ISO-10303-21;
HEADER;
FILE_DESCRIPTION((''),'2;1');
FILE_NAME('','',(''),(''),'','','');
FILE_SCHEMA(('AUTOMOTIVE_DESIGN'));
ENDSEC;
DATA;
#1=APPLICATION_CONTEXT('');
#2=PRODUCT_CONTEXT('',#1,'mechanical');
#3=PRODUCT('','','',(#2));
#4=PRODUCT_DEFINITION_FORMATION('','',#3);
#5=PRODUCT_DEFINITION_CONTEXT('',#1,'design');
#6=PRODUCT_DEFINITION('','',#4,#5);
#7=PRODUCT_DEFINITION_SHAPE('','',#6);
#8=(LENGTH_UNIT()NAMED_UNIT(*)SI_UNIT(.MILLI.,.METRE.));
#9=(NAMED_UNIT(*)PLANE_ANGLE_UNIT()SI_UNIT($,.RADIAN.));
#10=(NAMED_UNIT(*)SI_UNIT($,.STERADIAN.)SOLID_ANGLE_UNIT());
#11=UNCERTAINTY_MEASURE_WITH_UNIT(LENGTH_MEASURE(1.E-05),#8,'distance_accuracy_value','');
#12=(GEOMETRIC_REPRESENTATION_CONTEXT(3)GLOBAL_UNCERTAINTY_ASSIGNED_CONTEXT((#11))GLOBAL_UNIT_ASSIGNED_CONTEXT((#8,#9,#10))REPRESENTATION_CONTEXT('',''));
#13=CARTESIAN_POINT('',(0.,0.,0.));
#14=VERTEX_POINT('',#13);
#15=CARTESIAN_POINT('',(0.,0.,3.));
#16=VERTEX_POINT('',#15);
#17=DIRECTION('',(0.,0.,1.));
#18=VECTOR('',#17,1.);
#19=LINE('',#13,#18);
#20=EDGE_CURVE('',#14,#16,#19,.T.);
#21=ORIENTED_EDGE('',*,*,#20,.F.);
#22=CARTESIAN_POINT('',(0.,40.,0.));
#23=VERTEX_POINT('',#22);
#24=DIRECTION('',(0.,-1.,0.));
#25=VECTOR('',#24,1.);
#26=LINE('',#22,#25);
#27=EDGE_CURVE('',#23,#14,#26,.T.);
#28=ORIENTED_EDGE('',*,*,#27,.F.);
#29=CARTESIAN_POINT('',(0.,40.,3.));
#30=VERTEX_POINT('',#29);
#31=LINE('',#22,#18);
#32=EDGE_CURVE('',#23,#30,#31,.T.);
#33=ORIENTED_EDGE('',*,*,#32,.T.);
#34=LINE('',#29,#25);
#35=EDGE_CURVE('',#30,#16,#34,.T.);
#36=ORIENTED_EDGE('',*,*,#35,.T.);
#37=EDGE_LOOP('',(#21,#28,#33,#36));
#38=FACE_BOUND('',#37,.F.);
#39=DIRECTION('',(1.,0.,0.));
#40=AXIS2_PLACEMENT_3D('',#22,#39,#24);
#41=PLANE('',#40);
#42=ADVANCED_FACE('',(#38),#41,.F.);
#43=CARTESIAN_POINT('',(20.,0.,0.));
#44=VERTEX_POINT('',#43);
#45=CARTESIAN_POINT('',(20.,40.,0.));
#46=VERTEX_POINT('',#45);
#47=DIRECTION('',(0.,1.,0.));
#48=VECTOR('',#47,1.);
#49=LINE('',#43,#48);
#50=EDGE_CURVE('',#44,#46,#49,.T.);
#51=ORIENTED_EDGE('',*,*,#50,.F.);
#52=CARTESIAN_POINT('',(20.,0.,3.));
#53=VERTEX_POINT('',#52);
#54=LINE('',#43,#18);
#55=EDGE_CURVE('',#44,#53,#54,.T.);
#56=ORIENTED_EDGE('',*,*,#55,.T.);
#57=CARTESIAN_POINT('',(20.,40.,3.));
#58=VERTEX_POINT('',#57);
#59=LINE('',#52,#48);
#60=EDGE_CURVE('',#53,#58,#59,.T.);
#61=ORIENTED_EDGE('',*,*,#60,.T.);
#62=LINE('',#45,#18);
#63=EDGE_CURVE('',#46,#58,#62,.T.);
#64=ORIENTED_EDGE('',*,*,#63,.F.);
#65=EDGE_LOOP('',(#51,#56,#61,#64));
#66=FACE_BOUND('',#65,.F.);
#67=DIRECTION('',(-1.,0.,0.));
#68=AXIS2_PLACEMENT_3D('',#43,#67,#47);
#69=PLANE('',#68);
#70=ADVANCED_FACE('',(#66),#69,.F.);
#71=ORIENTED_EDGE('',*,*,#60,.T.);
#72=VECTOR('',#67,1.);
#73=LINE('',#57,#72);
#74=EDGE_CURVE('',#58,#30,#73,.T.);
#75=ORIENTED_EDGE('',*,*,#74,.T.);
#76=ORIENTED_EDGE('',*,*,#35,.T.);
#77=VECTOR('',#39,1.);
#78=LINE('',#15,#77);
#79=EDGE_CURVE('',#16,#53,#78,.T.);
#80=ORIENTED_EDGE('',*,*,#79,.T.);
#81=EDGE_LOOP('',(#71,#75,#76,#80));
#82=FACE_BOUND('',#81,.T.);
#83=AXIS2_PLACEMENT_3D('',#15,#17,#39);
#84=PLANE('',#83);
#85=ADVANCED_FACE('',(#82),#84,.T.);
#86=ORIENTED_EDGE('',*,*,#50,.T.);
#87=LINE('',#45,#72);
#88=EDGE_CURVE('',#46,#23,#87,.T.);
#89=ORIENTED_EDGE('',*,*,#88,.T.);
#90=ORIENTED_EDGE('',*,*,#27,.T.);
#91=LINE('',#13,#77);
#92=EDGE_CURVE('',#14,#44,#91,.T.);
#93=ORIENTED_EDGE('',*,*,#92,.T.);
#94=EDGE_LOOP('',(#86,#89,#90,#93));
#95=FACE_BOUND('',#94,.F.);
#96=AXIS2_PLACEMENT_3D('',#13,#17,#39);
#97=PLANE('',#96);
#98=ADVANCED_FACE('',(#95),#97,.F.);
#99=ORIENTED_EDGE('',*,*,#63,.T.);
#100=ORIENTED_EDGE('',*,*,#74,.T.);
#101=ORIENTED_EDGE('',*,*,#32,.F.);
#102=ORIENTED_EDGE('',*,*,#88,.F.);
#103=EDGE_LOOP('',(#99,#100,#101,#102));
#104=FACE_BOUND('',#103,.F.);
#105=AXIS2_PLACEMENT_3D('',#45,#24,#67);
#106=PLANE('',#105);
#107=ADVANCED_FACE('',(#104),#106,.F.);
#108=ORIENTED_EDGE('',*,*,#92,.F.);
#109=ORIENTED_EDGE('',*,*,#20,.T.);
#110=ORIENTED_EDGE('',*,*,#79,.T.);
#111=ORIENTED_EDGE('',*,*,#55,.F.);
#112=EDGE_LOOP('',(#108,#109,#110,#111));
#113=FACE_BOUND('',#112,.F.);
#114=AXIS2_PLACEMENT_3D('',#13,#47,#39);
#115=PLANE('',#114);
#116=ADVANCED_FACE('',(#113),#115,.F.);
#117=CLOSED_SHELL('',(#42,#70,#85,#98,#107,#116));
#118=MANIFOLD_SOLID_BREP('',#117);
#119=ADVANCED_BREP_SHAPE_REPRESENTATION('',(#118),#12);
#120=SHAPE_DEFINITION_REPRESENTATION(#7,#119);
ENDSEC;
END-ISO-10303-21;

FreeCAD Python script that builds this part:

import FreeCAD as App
import Part
import Sketcher

V = App.Vector

doc = App.newDocument("Part")
params = doc.addObject("Spreadsheet::Sheet", "Params")
for row, (alias, value) in enumerate([
    ("sketch1_width", "20 mm"),
    ("sketch1_height", "40 mm"),
    ("pad1_length", "3 mm"),
], start=1):
    params.set(f"A{row}", alias)
    params.set(f"B{row}", "=" + value)
    params.setAlias(f"B{row}", alias)

body = doc.addObject("PartDesign::Body", "Body")

# Sketch on XY plane
sketch1 = body.newObject("Sketcher::SketchObject", "Sketch")
sketch1.AttachmentSupport = (doc.getObject("XY_Plane"), [""])
sketch1.MapMode = "FlatFace"
sketch1.addGeometry([
    Part.LineSegment(V(0, 40, 0), V(0, 0, 0)),
    Part.LineSegment(V(0, 0, 0), V(20, 0, 0)),
    Part.LineSegment(V(20, 0, 0), V(20, 40, 0)),
    Part.LineSegment(V(20, 40, 0), V(0, 40, 0)),
], False)
sketch1.addConstraint([
    Sketcher.Constraint("Coincident", 0, 2, 1, 1),
    Sketcher.Constraint("Coincident", 1, 2, 2, 1),
    Sketcher.Constraint("Coincident", 2, 2, 3, 1),
    Sketcher.Constraint("Coincident", 3, 2, 0, 1),
    Sketcher.Constraint("Vertical", 0),
    Sketcher.Constraint("Horizontal", 1),
    Sketcher.Constraint("Vertical", 2),
    Sketcher.Constraint("Horizontal", 3),
    Sketcher.Constraint("Coincident", 0, 2, -1, 1),
    Sketcher.Constraint("DistanceX", 1, 1, 1, 2, 20.0),
    Sketcher.Constraint("DistanceY", 0, 2, 0, 1, 40.0),
])
sketch1.setExpression("Constraints[9]", "Params.sketch1_width")
sketch1.setExpression("Constraints[10]", "Params.sketch1_height")
pad1 = body.newObject("PartDesign::Pad", "Pad")
pad1.Profile = sketch1
pad1.setExpression("Length", "Params.pad1_length")

doc.recompute()
